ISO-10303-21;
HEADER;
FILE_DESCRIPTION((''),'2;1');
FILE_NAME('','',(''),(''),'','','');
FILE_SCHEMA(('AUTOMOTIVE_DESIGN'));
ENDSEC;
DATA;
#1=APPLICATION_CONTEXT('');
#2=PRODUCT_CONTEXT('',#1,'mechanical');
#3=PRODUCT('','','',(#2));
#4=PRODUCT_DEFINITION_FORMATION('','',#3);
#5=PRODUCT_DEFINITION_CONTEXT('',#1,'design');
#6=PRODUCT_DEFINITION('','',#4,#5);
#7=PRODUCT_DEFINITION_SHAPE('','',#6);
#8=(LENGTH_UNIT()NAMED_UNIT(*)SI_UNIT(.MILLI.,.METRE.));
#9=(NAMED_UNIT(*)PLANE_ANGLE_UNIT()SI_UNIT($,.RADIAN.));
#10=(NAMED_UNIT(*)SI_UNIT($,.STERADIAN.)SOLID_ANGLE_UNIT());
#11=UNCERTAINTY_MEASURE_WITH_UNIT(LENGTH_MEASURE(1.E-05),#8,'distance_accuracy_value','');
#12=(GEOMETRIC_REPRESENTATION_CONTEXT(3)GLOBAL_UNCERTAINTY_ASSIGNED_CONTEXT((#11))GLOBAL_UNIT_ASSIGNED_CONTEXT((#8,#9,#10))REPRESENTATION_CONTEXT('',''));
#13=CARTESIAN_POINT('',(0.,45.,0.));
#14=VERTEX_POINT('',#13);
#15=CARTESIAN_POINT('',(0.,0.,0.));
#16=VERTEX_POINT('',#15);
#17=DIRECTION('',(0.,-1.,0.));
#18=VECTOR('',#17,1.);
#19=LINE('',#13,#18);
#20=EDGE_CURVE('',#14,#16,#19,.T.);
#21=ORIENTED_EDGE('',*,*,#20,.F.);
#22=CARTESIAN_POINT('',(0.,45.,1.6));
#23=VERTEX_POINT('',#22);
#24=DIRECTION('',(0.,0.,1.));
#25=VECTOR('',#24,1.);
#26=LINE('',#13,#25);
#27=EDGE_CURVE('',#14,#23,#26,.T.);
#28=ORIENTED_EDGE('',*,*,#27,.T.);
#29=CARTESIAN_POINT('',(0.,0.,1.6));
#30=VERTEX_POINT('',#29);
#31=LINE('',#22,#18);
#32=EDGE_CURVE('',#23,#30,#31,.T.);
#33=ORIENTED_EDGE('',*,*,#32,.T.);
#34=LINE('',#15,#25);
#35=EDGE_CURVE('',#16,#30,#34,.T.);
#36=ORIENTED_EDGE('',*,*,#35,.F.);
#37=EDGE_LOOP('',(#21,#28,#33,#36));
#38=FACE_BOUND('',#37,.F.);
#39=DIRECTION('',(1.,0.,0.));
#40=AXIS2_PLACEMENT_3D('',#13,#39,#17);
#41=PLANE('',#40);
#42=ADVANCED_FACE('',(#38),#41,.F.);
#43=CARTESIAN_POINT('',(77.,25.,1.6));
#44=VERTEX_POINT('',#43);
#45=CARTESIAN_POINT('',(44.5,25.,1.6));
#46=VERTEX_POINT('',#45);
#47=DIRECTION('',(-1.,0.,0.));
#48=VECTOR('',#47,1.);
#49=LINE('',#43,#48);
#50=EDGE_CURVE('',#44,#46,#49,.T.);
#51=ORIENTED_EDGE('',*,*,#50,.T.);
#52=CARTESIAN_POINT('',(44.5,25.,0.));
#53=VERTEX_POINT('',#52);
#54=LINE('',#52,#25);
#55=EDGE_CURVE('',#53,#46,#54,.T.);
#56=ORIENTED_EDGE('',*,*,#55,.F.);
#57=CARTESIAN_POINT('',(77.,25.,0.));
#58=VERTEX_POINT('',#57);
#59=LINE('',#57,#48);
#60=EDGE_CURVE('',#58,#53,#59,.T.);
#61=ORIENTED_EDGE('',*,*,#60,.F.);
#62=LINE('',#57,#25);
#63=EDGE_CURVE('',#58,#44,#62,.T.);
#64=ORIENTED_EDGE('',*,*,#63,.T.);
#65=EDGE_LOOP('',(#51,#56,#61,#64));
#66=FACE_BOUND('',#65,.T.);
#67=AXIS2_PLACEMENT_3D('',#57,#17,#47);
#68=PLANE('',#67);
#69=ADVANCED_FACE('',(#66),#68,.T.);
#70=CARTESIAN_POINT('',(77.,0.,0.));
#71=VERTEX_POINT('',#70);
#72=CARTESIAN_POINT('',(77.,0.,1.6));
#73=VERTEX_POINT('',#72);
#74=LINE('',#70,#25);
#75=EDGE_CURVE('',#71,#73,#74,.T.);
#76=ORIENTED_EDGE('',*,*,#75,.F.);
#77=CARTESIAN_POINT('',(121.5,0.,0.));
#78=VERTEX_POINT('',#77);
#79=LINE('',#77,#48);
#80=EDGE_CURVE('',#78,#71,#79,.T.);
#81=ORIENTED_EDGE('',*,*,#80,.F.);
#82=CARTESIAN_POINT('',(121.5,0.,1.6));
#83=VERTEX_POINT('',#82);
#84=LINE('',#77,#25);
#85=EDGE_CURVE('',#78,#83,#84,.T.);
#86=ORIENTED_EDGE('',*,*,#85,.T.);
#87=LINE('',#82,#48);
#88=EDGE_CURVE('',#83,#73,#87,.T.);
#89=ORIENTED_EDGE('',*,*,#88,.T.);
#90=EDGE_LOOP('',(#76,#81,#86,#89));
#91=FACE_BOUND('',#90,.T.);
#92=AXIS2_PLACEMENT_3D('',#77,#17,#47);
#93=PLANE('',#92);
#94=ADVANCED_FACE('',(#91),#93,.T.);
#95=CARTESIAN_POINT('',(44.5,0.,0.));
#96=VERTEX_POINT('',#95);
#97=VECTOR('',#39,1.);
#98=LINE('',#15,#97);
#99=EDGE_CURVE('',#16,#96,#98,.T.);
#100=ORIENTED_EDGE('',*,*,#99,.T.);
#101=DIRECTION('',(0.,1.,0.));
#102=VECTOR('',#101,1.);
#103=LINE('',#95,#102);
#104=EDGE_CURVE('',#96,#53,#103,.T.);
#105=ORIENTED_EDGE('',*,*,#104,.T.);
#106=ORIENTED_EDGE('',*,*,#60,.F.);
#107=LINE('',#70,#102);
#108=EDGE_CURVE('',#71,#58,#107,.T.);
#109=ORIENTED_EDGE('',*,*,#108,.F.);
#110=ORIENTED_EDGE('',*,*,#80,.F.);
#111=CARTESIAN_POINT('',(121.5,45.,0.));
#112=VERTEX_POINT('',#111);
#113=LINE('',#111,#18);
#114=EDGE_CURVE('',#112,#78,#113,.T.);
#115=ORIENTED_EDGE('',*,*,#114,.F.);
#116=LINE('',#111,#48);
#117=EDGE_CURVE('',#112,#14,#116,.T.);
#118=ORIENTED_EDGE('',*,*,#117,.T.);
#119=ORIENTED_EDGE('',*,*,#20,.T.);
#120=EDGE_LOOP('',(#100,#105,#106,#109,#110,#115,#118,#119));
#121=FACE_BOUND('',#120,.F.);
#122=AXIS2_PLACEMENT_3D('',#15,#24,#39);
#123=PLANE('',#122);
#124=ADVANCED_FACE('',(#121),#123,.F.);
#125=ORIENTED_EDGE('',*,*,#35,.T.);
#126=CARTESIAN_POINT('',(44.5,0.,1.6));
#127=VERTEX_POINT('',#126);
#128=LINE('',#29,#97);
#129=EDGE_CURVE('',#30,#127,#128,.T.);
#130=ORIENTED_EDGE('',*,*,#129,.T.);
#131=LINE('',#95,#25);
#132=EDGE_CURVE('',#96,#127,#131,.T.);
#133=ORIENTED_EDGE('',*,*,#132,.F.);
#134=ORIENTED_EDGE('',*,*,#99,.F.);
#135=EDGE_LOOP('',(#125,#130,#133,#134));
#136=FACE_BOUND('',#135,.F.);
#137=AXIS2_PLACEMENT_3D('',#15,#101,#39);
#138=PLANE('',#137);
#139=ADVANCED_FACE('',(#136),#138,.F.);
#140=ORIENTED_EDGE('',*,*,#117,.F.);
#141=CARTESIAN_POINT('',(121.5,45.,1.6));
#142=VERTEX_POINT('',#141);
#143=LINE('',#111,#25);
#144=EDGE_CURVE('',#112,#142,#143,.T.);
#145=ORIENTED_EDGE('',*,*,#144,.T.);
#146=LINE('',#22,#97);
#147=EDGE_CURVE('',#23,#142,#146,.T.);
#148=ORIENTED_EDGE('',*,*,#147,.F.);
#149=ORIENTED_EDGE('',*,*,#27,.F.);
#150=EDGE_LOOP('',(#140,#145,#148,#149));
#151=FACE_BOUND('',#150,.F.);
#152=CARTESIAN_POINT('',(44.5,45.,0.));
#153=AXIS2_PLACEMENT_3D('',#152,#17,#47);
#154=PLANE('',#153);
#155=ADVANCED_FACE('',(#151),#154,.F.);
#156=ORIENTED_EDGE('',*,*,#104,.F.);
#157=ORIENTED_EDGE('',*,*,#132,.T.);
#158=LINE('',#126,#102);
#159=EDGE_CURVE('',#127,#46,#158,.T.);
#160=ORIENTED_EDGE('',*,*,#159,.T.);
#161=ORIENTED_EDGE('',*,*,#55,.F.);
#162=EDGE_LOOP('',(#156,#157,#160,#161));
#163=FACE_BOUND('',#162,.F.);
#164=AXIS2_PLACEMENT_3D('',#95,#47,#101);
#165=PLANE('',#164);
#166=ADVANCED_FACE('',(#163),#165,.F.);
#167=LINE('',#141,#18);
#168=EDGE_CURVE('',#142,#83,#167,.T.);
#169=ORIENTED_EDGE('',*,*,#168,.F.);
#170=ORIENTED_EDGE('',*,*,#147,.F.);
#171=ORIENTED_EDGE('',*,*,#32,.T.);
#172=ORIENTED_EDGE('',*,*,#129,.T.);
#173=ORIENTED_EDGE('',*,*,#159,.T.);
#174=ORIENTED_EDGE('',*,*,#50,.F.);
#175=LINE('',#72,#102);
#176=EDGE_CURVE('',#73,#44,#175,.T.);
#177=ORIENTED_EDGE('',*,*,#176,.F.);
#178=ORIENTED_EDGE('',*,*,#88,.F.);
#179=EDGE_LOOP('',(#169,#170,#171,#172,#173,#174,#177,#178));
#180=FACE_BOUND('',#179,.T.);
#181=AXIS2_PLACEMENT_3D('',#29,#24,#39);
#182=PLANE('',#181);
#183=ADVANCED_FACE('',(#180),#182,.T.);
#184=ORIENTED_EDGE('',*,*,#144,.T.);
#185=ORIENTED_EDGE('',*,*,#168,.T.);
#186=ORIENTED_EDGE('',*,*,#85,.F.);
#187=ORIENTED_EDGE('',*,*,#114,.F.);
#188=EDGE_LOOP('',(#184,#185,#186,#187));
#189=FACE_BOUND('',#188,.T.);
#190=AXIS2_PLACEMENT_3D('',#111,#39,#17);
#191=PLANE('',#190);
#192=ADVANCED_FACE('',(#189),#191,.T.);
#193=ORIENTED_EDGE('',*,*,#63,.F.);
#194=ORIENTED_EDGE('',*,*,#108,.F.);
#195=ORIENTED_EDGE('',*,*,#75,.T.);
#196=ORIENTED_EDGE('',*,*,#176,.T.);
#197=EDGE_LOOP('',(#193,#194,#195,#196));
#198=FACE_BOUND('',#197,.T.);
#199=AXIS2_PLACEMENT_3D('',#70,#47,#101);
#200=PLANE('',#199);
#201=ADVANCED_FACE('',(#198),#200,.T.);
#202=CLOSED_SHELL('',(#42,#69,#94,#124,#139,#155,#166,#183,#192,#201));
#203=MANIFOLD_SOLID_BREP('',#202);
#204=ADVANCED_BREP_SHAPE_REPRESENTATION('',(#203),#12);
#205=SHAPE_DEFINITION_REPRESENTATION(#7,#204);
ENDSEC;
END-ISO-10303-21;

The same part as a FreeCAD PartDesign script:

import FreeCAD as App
import Part
import Sketcher


def add_polygon(sketch, points):
    """Adds a closed chain of lines whose ends are joined by coincident constraints."""
    first, n = sketch.GeometryCount, len(points)
    for a, b in zip(points, points[1:] + points[:1]):
        sketch.addGeometry(Part.LineSegment(App.Vector(*a, 0), App.Vector(*b, 0)), False)
    for i in range(n):
        sketch.addConstraint(Sketcher.Constraint("Coincident", first + i, 2, first + (i + 1) % n, 1))

doc = App.newDocument("Part")
params = doc.addObject("Spreadsheet::Sheet", "Params")
for row, (alias, value) in enumerate([
    ("sketch1_height", "45 mm"),
    ("sketch1_width", "44.5 mm"),
    ("sketch1_width2", "32.5 mm"),
    ("pad1_length", "1.6 mm"),
], start=1):
    params.set(f"A{row}", alias)
    params.set(f"B{row}", "=" + value)
    params.setAlias(f"B{row}", alias)

body = doc.addObject("PartDesign::Body", "Body")

# Sketch on XY plane
sketch1 = body.newObject("Sketcher::SketchObject", "Sketch")
sketch1.AttachmentSupport = (doc.getObject("XY_Plane"), [""])
sketch1.MapMode = "FlatFace"
add_polygon(sketch1, [(0, 45), (0, 0), (44, 0), (44, 25), (77, 25), (77, 0), (122, 0), (122, 45)])  # lines 0-7
sketch1.addConstraint([
    Sketcher.Constraint("Vertical", 0),
    Sketcher.Constraint("Horizontal", 1),
    Sketcher.Constraint("Vertical", 2),
    Sketcher.Constraint("Horizontal", 3),
    Sketcher.Constraint("Vertical", 4),
    Sketcher.Constraint("Horizontal", 5),
    Sketcher.Constraint("Vertical", 6),
    Sketcher.Constraint("Horizontal", 7),
    Sketcher.Constraint("Coincident", 0, 2, -1, 1),
    Sketcher.Constraint("PointOnObject", 4, 2, -1),
    Sketcher.Constraint("Equal", 1, 5),
    Sketcher.Constraint("DistanceY", 0, 2, 0, 1, 45.0),
    Sketcher.Constraint("DistanceX", 1, 1, 1, 2, 44.5),
    Sketcher.Constraint("DistanceX", 3, 1, 3, 2, 32.5),
    Sketcher.Constraint("DistanceY", 3, 2, 6, 2, 20.0),
])
sketch1.setExpression("Constraints[19]", "Params.sketch1_height")
sketch1.setExpression("Constraints[20]", "Params.sketch1_width")
sketch1.setExpression("Constraints[21]", "Params.sketch1_width2")
pad1 = body.newObject("PartDesign::Pad", "Pad")
pad1.Profile = sketch1
pad1.setExpression("Length", "Params.pad1_length")

doc.recompute()
